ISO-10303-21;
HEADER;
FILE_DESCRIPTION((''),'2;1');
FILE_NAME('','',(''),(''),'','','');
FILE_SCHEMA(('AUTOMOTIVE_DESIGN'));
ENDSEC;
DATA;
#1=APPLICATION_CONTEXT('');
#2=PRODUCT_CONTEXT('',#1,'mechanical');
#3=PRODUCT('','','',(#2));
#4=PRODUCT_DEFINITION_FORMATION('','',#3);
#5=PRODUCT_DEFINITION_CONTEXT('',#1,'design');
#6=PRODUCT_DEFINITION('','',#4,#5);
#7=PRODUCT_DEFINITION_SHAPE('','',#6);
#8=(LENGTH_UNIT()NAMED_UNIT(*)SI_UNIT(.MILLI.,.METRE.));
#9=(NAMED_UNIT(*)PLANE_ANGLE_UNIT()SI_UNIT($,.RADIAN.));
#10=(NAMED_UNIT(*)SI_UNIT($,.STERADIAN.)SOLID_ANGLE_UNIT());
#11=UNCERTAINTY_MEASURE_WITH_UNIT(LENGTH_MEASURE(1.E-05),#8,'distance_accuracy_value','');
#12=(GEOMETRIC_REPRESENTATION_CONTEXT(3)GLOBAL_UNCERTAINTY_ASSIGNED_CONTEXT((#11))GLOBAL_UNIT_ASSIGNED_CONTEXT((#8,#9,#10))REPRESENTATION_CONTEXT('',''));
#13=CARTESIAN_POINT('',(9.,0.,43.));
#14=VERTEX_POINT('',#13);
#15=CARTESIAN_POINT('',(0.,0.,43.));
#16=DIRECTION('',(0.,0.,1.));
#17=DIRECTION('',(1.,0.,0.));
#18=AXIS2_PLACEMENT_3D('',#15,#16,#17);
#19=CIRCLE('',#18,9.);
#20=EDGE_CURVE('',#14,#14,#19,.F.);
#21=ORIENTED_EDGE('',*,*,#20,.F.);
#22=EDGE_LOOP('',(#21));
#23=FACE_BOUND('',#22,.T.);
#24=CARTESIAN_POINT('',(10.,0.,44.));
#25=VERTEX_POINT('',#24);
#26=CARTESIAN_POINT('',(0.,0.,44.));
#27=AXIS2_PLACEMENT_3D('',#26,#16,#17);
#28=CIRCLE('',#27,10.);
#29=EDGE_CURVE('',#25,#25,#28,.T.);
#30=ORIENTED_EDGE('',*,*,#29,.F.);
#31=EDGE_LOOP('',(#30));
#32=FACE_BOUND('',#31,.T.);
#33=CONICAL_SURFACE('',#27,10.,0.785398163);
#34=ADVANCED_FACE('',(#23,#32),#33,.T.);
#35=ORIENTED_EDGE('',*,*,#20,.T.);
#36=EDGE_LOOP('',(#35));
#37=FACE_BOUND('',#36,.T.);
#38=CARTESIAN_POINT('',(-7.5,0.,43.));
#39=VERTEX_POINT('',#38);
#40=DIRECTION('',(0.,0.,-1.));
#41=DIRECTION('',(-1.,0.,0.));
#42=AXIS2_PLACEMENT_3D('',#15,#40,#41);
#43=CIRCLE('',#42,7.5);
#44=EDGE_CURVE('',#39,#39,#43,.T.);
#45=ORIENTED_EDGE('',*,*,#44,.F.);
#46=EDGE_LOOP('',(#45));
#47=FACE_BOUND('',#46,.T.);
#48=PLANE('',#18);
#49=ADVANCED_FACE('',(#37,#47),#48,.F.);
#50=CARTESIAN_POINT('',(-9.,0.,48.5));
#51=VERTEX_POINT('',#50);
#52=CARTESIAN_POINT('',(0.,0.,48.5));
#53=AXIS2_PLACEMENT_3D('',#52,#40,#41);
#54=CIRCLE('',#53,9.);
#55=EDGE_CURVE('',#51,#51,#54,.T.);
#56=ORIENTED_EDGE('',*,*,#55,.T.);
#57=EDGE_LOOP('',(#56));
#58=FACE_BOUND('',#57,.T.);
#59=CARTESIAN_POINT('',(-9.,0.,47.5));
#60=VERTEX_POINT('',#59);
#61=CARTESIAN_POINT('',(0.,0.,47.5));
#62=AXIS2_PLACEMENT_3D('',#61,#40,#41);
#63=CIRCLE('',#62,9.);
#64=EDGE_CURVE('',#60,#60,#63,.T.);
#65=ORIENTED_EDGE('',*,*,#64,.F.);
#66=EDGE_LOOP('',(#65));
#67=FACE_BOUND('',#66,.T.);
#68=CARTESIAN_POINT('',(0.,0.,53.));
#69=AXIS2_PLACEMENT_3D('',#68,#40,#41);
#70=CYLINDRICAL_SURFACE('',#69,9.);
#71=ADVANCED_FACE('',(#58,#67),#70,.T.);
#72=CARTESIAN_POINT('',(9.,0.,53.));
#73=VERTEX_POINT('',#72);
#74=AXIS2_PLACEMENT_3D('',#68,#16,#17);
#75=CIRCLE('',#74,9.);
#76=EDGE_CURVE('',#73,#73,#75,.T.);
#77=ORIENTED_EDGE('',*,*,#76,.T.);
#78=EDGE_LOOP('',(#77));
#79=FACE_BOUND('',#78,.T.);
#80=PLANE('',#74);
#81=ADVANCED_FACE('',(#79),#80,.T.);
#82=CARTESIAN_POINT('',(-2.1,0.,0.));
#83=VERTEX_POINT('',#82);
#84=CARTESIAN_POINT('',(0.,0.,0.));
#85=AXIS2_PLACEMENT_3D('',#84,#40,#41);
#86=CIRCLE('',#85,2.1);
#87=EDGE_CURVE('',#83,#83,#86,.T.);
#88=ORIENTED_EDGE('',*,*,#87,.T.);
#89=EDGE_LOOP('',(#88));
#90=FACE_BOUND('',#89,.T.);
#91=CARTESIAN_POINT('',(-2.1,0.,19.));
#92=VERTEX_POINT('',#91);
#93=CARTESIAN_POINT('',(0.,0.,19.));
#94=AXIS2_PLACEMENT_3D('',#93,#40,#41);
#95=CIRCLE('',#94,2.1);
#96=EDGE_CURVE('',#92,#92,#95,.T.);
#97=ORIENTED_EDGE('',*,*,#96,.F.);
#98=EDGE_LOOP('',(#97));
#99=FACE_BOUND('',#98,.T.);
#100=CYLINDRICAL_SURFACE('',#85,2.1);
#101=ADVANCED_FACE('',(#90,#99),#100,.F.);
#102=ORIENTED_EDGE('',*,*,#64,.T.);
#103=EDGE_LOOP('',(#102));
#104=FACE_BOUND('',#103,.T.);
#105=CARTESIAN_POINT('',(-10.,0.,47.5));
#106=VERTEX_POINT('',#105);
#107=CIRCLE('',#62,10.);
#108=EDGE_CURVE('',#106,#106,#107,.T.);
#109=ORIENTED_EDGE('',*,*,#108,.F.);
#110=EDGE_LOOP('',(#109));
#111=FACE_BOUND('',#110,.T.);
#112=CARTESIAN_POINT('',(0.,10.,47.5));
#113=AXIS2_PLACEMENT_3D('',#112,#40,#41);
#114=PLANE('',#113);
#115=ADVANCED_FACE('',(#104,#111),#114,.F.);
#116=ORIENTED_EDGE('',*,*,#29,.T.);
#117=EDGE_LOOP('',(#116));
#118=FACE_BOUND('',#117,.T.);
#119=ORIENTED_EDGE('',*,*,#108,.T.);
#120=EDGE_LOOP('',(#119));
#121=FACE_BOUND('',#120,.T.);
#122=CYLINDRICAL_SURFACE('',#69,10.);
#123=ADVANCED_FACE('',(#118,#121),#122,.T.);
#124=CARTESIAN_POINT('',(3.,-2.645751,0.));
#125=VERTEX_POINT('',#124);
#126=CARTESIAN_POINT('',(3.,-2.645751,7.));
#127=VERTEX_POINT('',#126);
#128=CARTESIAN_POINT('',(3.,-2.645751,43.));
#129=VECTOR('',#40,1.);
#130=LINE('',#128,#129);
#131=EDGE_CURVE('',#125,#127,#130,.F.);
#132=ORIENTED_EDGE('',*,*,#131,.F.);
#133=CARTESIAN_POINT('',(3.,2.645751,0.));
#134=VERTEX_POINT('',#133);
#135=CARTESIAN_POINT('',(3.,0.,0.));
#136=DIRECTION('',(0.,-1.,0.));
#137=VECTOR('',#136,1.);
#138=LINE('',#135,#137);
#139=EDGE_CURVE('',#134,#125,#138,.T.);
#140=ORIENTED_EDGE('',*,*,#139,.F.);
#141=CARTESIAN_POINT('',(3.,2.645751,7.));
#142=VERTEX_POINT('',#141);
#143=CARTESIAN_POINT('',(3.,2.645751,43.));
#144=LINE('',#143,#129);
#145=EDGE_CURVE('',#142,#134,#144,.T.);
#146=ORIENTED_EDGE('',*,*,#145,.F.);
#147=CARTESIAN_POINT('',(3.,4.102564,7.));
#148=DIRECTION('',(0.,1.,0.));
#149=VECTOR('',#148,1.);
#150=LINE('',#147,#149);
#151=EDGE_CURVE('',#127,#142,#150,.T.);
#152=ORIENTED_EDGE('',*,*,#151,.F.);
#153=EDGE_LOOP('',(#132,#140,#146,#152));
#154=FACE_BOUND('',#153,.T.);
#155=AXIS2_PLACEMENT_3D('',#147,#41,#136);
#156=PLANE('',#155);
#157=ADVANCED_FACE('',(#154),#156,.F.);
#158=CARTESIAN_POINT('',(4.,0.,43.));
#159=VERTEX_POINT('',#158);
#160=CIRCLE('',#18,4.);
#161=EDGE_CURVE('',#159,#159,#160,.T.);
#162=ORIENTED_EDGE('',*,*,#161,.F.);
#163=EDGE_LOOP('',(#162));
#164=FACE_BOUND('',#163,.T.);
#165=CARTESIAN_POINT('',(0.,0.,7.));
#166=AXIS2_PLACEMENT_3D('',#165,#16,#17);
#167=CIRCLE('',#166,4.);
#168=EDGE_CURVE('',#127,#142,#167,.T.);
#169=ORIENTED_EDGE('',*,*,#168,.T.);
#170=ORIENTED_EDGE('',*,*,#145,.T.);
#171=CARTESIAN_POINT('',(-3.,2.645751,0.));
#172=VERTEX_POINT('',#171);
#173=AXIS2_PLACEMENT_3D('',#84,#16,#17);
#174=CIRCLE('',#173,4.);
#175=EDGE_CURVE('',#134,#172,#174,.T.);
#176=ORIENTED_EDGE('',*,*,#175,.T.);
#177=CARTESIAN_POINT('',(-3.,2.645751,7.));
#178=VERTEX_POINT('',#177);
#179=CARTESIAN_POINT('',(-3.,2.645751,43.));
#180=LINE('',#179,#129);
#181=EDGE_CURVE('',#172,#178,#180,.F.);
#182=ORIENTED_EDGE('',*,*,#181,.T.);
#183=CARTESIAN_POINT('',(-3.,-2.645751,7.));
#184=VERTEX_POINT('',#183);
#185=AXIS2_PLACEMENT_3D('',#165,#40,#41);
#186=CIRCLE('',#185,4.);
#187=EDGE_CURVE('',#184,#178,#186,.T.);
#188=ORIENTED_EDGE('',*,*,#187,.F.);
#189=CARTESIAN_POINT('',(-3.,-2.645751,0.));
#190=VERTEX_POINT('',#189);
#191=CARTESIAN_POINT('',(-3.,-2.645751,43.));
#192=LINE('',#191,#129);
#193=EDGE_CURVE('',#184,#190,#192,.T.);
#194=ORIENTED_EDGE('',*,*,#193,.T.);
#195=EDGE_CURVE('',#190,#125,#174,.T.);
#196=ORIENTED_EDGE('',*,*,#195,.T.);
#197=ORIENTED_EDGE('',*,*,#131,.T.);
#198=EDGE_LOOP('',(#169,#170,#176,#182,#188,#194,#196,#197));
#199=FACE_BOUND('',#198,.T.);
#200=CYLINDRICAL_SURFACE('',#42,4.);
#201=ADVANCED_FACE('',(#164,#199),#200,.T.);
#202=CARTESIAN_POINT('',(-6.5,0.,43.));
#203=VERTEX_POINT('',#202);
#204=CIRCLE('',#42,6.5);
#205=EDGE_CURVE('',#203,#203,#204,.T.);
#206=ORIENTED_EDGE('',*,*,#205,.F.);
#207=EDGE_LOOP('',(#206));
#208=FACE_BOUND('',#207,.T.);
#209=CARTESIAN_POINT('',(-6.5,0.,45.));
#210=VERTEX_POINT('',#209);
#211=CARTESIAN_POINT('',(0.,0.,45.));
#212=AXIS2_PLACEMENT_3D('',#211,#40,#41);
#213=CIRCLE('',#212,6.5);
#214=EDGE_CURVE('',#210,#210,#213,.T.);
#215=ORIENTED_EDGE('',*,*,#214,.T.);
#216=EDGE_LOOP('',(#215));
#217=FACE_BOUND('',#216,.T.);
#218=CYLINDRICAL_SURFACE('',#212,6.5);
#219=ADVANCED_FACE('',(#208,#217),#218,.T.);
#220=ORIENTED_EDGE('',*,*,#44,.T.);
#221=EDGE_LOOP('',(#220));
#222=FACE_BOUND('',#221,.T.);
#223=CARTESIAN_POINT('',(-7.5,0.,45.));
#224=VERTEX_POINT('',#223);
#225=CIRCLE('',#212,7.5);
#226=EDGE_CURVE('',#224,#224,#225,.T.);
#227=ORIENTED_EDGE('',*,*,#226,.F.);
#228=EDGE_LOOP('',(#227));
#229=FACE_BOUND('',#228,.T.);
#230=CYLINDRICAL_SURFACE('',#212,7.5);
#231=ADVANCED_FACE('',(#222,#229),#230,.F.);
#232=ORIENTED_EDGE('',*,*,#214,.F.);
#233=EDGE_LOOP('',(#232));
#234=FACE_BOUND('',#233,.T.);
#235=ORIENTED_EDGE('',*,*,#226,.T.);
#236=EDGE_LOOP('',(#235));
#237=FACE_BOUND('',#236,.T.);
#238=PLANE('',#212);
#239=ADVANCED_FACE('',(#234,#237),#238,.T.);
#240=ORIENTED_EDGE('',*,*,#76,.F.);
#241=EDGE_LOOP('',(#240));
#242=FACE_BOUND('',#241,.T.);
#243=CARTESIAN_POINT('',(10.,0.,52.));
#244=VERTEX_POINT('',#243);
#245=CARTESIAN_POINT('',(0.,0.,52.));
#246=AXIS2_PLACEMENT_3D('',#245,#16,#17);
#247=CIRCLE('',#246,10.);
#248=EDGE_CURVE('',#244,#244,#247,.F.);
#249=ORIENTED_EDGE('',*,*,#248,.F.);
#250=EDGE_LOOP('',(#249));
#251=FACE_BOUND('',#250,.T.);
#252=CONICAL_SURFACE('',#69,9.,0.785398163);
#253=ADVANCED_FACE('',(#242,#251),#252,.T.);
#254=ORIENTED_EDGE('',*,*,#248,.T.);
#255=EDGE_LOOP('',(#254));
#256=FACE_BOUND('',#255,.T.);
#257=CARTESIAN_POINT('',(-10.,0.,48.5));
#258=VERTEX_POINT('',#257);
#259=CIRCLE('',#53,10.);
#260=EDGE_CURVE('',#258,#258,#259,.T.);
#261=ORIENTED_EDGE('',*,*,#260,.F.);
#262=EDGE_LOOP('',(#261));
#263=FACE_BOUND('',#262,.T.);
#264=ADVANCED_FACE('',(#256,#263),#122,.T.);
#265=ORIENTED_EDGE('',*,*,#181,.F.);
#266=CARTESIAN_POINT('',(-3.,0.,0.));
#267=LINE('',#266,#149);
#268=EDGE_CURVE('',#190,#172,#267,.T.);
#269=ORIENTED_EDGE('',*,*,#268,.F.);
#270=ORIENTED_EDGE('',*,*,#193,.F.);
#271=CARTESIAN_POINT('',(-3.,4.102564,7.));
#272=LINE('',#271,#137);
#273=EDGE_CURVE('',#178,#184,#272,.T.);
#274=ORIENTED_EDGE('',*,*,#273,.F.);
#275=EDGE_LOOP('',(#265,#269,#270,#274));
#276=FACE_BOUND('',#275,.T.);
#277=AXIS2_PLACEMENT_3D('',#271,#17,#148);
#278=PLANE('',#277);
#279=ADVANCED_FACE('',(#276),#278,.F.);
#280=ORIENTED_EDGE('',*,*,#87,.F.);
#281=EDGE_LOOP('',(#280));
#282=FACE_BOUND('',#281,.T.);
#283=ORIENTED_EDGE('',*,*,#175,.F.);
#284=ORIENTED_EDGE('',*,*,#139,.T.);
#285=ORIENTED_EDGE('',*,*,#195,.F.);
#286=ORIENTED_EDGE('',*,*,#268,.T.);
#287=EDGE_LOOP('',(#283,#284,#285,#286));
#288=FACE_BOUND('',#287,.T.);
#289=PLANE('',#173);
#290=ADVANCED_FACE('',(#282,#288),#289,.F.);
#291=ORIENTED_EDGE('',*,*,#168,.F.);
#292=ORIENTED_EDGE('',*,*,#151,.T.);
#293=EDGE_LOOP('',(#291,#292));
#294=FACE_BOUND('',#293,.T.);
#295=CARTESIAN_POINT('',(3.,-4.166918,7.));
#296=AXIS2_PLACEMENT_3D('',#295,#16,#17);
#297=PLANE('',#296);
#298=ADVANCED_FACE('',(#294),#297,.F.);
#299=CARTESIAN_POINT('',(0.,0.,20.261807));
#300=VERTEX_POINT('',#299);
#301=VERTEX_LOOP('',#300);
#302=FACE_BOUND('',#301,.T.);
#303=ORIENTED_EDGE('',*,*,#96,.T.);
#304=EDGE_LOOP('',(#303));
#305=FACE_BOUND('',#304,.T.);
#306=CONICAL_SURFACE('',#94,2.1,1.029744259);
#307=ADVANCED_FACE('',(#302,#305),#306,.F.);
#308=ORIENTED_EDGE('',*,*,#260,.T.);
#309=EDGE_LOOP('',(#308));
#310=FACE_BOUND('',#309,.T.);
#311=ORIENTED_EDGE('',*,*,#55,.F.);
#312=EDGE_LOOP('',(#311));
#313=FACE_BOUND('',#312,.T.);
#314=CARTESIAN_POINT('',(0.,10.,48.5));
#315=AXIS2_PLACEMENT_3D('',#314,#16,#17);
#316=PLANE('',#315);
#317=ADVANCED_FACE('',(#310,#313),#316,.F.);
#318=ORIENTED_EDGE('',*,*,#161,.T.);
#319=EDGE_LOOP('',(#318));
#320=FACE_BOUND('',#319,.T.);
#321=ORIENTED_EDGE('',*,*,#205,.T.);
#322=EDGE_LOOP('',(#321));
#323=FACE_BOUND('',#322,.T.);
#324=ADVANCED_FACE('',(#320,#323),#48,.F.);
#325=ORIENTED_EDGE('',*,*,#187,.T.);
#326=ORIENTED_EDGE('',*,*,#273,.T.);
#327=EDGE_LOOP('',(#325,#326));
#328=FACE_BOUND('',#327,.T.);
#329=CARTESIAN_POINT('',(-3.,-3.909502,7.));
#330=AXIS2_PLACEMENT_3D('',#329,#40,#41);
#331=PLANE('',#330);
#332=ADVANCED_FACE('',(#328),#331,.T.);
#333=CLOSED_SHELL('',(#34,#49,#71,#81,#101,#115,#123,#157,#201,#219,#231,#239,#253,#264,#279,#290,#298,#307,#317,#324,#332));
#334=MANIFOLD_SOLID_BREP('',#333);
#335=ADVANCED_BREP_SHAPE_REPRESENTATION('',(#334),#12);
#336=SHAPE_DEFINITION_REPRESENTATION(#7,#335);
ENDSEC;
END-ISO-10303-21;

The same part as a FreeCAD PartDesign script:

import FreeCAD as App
import Part
import Sketcher

V = App.Vector


def edges_at(feature, points):
    """Names of the edges that pass closest to the given points."""
    edges = feature.Shape.Edges
    near = lambda p: min(range(len(edges)), key=lambda i: edges[i].distToShape(Part.Vertex(*p))[0])
    return sorted({f"Edge{near(p) + 1}" for p in points})

doc = App.newDocument("Part")
body = doc.addObject("PartDesign::Body", "Body")

sketch1 = body.newObject("Sketcher::SketchObject", "Sketch")
sketch1.AttachmentSupport = (doc.getObject("XY_Plane"), [""])
sketch1.MapMode = "FlatFace"
sketch1.addGeometry(Part.Circle(V(0, 0, 0), V(0, 0, 1), 4), False)
sketch1.addConstraint([
    Sketcher.Constraint("Coincident", 0, 3, -1, 1),
    Sketcher.Constraint("Diameter", 0, 8.0),
])
pad1 = body.newObject("PartDesign::Pad", "Pad")
pad1.Profile = sketch1
pad1.Length = 43

sketch2 = body.newObject("Sketcher::SketchObject", "Sketch001")
sketch2.AttachmentSupport = (doc.getObject("XY_Plane"), [""])
sketch2.MapMode = "FlatFace"
sketch2.AttachmentOffset = App.Placement(V(0, 0, 43), App.Rotation())
sketch2.addGeometry(Part.Circle(V(0, 0, 0), V(0, 0, 1), 10), False)
sketch2.addConstraint([
    Sketcher.Constraint("Coincident", 0, 3, -1, 1),
    Sketcher.Constraint("Diameter", 0, 20.0),
])
pad2 = body.newObject("PartDesign::Pad", "Pad001")
pad2.Profile = sketch2
pad2.Length = 10

sketch3 = body.newObject("Sketcher::SketchObject", "Sketch002")
sketch3.AttachmentSupport = (doc.getObject("XY_Plane"), [""])
sketch3.MapMode = "FlatFace"
sketch3.addGeometry([
    Part.LineSegment(V(-3, 4.1, 0), V(-3, -3.9, 0)),
    Part.LineSegment(V(-3, -3.9, 0), V(-6.3, -3.9, 0)),
    Part.LineSegment(V(-6.3, -3.9, 0), V(-6.3, 4.1, 0)),
    Part.LineSegment(V(-6.3, 4.1, 0), V(-3, 4.1, 0)),
    Part.LineSegment(V(6.1, 4.1, 0), V(6.1, -4.2, 0)),
    Part.LineSegment(V(6.1, -4.2, 0), V(3, -4.2, 0)),
    Part.LineSegment(V(3, -4.2, 0), V(3, 4.1, 0)),
    Part.LineSegment(V(3, 4.1, 0), V(6.1, 4.1, 0)),
], False)
sketch3.addConstraint([
    Sketcher.Constraint("Coincident", 0, 2, 1, 1),
    Sketcher.Constraint("Coincident", 1, 2, 2, 1),
    Sketcher.Constraint("Coincident", 2, 2, 3, 1),
    Sketcher.Constraint("Coincident", 3, 2, 0, 1),
    Sketcher.Constraint("Coincident", 4, 2, 5, 1),
    Sketcher.Constraint("Coincident", 5, 2, 6, 1),
    Sketcher.Constraint("Coincident", 6, 2, 7, 1),
    Sketcher.Constraint("Coincident", 7, 2, 4, 1),
    Sketcher.Constraint("Vertical", 0),
    Sketcher.Constraint("Horizontal", 1),
    Sketcher.Constraint("Vertical", 2),
    Sketcher.Constraint("Horizontal", 3),
    Sketcher.Constraint("Vertical", 4),
    Sketcher.Constraint("Horizontal", 5),
    Sketcher.Constraint("Vertical", 6),
    Sketcher.Constraint("Horizontal", 7),
    Sketcher.Constraint("Symmetric", 3, 2, 6, 2, -2),
    Sketcher.Constraint("DistanceX", 0, 2, -1, 1, 3.0),
    Sketcher.Constraint("DistanceX", 1, 2, 1, 1, 3.314228),
    Sketcher.Constraint("DistanceX", 5, 2, 5, 1, 3.056812),
    Sketcher.Constraint("DistanceY", 0, 2, 0, 1, 8.012066),
    Sketcher.Constraint("DistanceY", 4, 2, 4, 1, 8.269482),
    Sketcher.Constraint("DistanceY", 4, 2, -1, 1, 4.166918),
])
pocket1 = body.newObject("PartDesign::Pocket", "Pocket")
pocket1.Profile = sketch3
pocket1.Length = 7
pocket1.Reversed = True
doc.recompute()

chamfer = body.newObject("PartDesign::Chamfer", "Chamfer")
chamfer.Base = (pocket1, edges_at(pocket1, [(-10, 0, 43), (-10, 0, 53)]))
chamfer.Size = 1

sketch4 = body.newObject("Sketcher::SketchObject", "Sketch003")
sketch4.AttachmentSupport = (doc.getObject("YZ_Plane"), [""])
sketch4.MapMode = "FlatFace"
sketch4.addGeometry([
    Part.LineSegment(V(10, 48.5, 0), V(9, 48.5, 0)),
    Part.LineSegment(V(9, 48.5, 0), V(9, 47.5, 0)),
    Part.LineSegment(V(9, 47.5, 0), V(10, 47.5, 0)),
    Part.LineSegment(V(10, 47.5, 0), V(10, 48.5, 0)),
], False)
sketch4.addConstraint([
    Sketcher.Constraint("Coincident", 0, 2, 1, 1),
    Sketcher.Constraint("Coincident", 1, 2, 2, 1),
    Sketcher.Constraint("Coincident", 2, 2, 3, 1),
    Sketcher.Constraint("Coincident", 3, 2, 0, 1),
    Sketcher.Constraint("Horizontal", 0),
    Sketcher.Constraint("Vertical", 1),
    Sketcher.Constraint("Horizontal", 2),
    Sketcher.Constraint("Vertical", 3),
    Sketcher.Constraint("Equal", 2, 1),
    Sketcher.Constraint("DistanceX", 0, 2, 0, 1, 1.0),
    Sketcher.Constraint("DistanceX", -1, 1, 0, 2, 9.0),
    Sketcher.Constraint("DistanceY", -1, 1, 0, 2, 48.5),
])
groove = body.newObject("PartDesign::Groove", "Groove")
groove.Profile = sketch4
groove.ReferenceAxis = (sketch4, ["V_Axis"])
groove.Angle = 360

sketch5 = body.newObject("Sketcher::SketchObject", "Sketch004")
sketch5.AttachmentSupport = (doc.getObject("XY_Plane"), [""])
sketch5.MapMode = "FlatFace"
sketch5.addGeometry(Part.Circle(V(0, 0, 0), V(0, 0, 1), 2.1), False)
sketch5.addConstraint([
    Sketcher.Constraint("Coincident", 0, 3, -1, 1),
    Sketcher.Constraint("Diameter", 0, 4.2),
])
doc.recompute()
hole = body.newObject("PartDesign::Hole", "Hole")
hole.Profile = sketch5
hole.ThreadType = "None"
hole.Diameter = 4.2
hole.DepthType = "Dimension"
hole.Depth = 19
hole.DrillPoint = "Angled"
hole.DrillPointAngle = 118
hole.Reversed = True

sketch6 = body.newObject("Sketcher::SketchObject", "Sketch005")
sketch6.AttachmentSupport = (doc.getObject("XY_Plane"), [""])
sketch6.MapMode = "FlatFace"
sketch6.AttachmentOffset = App.Placement(V(0, 0, 43), App.Rotation())
sketch6.addGeometry([
    Part.Circle(V(0, 0, 0), V(0, 0, 1), 8),
    Part.Circle(V(0, 0, 0), V(0, 0, 1), 6),
], False)
sketch6.addConstraint([
    Sketcher.Constraint("Coincident", 0, 3, -1, 1),
    Sketcher.Constraint("Coincident", 1, 3, -1, 1),
    Sketcher.Constraint("Diameter", 0, 15.0),
    Sketcher.Constraint("Diameter", 1, 13.0),
])
pocket2 = body.newObject("PartDesign::Pocket", "Pocket001")
pocket2.Profile = sketch6
pocket2.Length = 2
pocket2.Reversed = True

doc.recompute()
